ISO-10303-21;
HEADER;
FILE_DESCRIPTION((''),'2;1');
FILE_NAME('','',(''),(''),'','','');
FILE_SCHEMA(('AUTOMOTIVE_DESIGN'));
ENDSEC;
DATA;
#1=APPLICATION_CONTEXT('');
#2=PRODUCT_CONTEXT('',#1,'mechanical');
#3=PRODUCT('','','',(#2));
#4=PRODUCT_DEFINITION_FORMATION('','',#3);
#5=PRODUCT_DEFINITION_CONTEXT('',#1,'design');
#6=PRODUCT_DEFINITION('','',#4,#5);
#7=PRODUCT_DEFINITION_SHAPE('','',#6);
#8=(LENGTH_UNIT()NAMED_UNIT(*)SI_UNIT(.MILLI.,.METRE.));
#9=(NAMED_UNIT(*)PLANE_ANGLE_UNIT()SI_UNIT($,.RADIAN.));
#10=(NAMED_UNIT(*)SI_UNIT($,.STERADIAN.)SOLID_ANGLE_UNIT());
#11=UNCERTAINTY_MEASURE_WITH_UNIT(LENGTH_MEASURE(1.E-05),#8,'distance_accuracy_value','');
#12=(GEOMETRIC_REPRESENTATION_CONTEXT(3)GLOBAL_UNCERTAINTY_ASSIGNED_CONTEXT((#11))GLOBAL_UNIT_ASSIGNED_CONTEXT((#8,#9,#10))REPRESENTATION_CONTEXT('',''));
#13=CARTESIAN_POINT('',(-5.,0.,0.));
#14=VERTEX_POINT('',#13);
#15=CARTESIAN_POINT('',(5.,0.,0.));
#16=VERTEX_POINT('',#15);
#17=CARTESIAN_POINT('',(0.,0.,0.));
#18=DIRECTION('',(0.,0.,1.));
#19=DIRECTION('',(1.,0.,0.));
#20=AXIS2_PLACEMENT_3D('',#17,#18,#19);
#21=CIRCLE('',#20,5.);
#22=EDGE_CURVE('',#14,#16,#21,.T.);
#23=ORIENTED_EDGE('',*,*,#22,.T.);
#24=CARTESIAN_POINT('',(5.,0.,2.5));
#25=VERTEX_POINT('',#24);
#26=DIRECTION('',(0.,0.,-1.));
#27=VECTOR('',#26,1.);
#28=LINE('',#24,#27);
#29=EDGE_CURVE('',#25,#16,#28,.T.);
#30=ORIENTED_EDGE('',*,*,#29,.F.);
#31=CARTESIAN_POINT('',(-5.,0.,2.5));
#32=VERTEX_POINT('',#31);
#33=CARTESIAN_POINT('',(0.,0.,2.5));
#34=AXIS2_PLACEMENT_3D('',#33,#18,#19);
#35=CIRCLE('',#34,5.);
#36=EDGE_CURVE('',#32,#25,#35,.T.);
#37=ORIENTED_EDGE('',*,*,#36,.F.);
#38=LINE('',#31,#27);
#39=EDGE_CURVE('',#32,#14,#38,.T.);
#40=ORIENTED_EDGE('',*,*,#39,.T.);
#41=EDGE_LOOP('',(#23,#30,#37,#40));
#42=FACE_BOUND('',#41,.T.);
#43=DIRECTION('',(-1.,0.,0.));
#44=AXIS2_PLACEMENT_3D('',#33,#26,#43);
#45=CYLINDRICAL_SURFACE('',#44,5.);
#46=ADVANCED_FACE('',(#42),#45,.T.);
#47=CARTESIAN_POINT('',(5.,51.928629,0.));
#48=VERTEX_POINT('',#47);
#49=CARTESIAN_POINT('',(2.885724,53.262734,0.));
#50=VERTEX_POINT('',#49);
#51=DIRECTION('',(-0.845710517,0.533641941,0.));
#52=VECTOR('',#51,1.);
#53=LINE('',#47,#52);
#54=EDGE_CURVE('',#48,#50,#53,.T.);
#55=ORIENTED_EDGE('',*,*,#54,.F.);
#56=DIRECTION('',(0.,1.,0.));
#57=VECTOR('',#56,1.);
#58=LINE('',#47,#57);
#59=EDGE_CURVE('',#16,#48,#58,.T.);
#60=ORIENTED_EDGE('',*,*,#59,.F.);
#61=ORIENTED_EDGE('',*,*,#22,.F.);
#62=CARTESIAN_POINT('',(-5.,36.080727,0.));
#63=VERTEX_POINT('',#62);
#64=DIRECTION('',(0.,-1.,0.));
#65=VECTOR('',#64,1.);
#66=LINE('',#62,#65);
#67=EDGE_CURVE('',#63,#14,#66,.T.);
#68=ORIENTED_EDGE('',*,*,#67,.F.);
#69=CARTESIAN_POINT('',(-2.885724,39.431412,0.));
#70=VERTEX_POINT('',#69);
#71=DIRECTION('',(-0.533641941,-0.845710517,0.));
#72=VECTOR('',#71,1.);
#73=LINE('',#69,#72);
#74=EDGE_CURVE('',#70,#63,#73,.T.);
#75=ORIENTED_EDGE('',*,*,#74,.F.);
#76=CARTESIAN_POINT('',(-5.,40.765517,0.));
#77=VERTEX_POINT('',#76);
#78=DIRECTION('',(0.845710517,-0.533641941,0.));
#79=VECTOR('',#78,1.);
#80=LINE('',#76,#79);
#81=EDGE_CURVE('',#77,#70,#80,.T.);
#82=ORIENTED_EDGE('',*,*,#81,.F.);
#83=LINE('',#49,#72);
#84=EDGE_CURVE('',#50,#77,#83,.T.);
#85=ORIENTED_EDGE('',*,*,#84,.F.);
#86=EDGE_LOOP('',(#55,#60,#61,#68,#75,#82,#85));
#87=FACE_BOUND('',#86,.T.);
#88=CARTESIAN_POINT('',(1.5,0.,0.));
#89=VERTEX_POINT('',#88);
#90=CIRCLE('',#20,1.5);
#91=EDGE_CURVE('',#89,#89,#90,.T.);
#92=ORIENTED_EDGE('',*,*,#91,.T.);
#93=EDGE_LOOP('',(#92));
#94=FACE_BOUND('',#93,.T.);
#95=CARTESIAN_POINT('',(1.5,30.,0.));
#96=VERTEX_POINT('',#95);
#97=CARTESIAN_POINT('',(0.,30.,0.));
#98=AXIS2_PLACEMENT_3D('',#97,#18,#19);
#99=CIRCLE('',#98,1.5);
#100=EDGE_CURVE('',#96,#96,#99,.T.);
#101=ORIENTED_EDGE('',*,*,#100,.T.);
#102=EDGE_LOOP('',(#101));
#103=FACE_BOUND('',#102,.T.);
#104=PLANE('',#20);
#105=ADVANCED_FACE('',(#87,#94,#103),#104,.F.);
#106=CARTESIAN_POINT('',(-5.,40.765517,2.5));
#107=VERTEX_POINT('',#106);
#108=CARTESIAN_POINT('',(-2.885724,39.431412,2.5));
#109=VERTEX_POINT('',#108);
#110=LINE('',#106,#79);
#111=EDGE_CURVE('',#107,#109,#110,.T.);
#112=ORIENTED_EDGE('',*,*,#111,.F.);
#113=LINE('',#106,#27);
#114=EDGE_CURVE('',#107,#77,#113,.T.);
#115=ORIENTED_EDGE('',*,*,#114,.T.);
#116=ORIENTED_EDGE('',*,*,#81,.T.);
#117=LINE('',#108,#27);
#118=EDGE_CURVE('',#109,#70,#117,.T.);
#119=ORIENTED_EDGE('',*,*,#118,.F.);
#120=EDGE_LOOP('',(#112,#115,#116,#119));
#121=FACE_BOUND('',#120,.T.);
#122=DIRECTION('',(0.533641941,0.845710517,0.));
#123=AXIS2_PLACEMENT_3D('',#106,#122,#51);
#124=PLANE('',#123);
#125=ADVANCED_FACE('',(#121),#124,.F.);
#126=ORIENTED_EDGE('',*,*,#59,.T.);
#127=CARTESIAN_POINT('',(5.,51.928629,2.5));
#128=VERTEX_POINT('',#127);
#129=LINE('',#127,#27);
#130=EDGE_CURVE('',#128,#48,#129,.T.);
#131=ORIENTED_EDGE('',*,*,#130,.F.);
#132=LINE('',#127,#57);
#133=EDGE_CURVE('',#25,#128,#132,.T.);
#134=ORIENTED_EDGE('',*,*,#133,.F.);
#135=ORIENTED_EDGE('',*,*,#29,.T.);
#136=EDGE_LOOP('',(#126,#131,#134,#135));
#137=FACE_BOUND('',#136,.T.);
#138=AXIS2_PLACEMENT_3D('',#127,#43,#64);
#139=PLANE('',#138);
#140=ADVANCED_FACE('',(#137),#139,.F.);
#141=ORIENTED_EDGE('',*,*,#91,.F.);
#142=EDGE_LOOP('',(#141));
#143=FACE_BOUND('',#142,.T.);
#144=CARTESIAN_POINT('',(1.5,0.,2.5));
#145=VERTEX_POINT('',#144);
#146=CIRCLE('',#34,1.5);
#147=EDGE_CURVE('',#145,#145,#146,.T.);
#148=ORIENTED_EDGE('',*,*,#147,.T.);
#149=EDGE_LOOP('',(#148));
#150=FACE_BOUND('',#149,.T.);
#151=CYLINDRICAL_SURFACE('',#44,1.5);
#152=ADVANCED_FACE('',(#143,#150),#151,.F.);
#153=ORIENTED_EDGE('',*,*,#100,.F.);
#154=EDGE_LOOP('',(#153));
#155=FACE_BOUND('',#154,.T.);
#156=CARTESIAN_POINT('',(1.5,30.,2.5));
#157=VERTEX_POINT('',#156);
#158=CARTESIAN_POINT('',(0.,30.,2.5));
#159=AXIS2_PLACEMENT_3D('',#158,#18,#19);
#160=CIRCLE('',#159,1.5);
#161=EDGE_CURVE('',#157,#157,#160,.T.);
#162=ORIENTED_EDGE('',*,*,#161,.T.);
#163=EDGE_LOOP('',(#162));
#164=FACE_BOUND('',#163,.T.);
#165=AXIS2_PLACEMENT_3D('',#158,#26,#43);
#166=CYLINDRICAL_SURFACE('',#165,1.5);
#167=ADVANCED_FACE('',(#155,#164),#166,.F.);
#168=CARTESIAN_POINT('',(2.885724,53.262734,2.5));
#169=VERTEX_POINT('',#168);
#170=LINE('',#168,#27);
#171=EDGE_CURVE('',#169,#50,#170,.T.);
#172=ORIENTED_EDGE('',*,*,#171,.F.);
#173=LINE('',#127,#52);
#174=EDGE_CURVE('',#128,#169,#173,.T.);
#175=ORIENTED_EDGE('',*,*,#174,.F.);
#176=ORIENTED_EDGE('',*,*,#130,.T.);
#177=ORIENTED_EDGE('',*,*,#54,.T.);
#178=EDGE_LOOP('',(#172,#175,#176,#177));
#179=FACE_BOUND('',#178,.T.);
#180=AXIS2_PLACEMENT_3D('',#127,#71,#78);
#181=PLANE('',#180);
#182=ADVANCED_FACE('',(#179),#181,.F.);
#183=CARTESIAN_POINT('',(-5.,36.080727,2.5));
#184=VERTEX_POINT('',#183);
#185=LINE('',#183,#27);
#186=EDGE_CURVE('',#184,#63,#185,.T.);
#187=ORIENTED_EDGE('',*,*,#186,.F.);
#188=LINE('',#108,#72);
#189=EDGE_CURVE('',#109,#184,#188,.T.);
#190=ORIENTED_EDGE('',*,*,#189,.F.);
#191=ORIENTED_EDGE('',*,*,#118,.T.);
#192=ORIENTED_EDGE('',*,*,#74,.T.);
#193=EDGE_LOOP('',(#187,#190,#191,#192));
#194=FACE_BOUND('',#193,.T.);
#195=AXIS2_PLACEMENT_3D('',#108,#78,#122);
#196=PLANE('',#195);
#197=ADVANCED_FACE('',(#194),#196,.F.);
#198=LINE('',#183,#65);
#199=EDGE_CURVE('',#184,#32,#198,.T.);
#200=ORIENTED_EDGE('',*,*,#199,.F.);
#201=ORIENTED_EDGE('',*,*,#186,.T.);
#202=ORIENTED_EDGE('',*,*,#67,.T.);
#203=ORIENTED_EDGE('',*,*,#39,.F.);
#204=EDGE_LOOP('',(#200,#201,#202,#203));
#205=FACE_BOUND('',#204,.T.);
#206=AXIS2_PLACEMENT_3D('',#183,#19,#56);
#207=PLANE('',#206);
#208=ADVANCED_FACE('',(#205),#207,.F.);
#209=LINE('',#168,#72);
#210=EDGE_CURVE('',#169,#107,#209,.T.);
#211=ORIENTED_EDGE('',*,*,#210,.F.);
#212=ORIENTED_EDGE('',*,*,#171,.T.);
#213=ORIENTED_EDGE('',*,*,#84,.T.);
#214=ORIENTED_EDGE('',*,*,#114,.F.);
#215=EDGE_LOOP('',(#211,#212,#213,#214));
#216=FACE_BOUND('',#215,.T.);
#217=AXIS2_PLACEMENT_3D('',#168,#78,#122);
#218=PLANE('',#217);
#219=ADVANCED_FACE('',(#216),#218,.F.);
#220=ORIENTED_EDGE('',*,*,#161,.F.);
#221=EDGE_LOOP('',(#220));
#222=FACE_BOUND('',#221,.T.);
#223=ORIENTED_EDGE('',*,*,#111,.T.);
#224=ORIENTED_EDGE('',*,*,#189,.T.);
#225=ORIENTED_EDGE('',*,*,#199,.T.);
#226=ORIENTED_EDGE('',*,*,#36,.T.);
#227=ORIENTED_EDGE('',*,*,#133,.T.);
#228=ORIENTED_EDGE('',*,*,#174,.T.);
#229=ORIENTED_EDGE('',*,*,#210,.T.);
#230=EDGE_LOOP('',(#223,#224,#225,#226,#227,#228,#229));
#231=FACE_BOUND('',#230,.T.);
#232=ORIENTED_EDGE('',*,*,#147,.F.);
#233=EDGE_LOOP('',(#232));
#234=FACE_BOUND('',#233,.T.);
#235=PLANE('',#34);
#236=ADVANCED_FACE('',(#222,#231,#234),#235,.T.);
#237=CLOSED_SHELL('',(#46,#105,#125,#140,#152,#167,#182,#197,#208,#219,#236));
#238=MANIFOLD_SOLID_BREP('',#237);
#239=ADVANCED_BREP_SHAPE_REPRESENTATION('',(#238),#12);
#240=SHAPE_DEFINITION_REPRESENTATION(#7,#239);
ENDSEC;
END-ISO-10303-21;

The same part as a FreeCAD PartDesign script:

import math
import FreeCAD as App
import Part
import Sketcher

V = App.Vector

doc = App.newDocument("Part")
body = doc.addObject("PartDesign::Body", "Body")

# Sketch on XY plane
sketch1 = body.newObject("Sketcher::SketchObject", "Sketch")
sketch1.AttachmentSupport = (doc.getObject("XY_Plane"), [""])
sketch1.MapMode = "FlatFace"
sketch1.addGeometry(Part.LineSegment(V(-5, 36.1, 0), V(-5, 0, 0)), False)
sketch1.addGeometry(Part.ArcOfCircle(Part.Circle(V(0, 0, 0), V(0, 0, 1), 5), math.radians(180), math.radians(360)), False)
sketch1.addGeometry(Part.LineSegment(V(5, 0, 0), V(5, 51.9, 0)), False)
sketch1.addGeometry(Part.LineSegment(V(5, 51.9, 0), V(2.9, 53.3, 0)), False)
sketch1.addGeometry(Part.LineSegment(V(2.9, 53.3, 0), V(-5, 40.8, 0)), False)
sketch1.addGeometry(Part.LineSegment(V(-5, 40.8, 0), V(-2.9, 39.4, 0)), False)
sketch1.addGeometry(Part.LineSegment(V(-2.9, 39.4, 0), V(-5, 36.1, 0)), False)
sketch1.addGeometry(Part.Circle(V(0, 0, 0), V(0, 0, 1), 1.5), False)
sketch1.addGeometry(Part.Circle(V(0, 30, 0), V(0, 0, 1), 1.5), False)
sketch1.addConstraint(Sketcher.Constraint("Tangent", 0, 2, 1, 1))
sketch1.addConstraint(Sketcher.Constraint("Tangent", 1, 2, 2, 1))
sketch1.addConstraint(Sketcher.Constraint("Coincident", 2, 2, 3, 1))
sketch1.addConstraint(Sketcher.Constraint("Coincident", 3, 2, 4, 1))
sketch1.addConstraint(Sketcher.Constraint("Coincident", 4, 2, 5, 1))
sketch1.addConstraint(Sketcher.Constraint("Coincident", 5, 2, 6, 1))
sketch1.addConstraint(Sketcher.Constraint("Coincident", 6, 2, 0, 1))
sketch1.addConstraint(Sketcher.Constraint("Vertical", 0))
sketch1.addConstraint(Sketcher.Constraint("Vertical", 2))
sketch1.addConstraint(Sketcher.Constraint("Coincident", 1, 3, -1, 1))
sketch1.addConstraint(Sketcher.Constraint("Coincident", 7, 3, -1, 1))
sketch1.addConstraint(Sketcher.Constraint("Equal", 7, 8))
sketch1.addConstraint(Sketcher.Constraint("PointOnObject", 8, 3, -2))
sketch1.addConstraint(Sketcher.Constraint("Perpendicular", 3, 4))
sketch1.addConstraint(Sketcher.Constraint("Perpendicular", 4, 5))
sketch1.addConstraint(Sketcher.Constraint("Perpendicular", 5, 6))
sketch1.addConstraint(Sketcher.Constraint("Vertical", 0, 2, 4, 2))
sketch1.addConstraint(Sketcher.Constraint("Equal", 3, 5))
sketch1.addConstraint(Sketcher.Constraint("Diameter", 7, 3.0))
sketch1.addConstraint(Sketcher.Constraint("Radius", 1, 5.0))
sketch1.addConstraint(Sketcher.Constraint("DistanceY", -1, 1, 8, 3, 30.0))
sketch1.addConstraint(Sketcher.Constraint("Distance", 3, 2.5))
sketch1.addConstraint(Sketcher.Constraint("DistanceY", 2, 1, 2, 2, 51.928629))
sketch1.addConstraint(Sketcher.Constraint("DistanceY", 6, 2, 2, 2, 15.847902))
pad1 = body.newObject("PartDesign::Pad", "Pad")
pad1.Profile = sketch1
pad1.Length = 2.5

doc.recompute()
